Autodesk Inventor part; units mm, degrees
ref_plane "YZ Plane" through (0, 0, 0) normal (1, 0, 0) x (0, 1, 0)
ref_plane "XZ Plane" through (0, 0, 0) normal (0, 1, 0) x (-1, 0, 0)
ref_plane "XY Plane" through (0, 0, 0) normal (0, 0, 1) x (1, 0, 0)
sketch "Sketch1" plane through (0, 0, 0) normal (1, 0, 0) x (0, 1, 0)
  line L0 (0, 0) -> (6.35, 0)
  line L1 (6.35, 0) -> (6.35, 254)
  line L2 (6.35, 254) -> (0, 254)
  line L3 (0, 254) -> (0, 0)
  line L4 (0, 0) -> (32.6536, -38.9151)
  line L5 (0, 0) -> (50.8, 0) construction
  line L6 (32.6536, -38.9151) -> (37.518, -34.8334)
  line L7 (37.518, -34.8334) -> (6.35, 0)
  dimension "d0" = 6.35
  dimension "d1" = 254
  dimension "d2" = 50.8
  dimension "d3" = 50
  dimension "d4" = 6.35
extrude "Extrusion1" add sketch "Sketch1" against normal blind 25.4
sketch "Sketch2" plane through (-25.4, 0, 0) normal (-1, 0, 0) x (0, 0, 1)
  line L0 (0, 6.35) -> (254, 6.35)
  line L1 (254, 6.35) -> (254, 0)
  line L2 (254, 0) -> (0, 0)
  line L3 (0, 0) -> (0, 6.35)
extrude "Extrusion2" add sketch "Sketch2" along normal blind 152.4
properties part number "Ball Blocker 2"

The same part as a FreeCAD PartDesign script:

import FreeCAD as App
import Part
import Sketcher

V = App.Vector
Q = App.Units.Quantity


def add_polygon(sketch, points):
    """Adds a closed chain of lines whose ends are joined by coincident constraints."""
    first, n = sketch.GeometryCount, len(points)
    for a, b in zip(points, points[1:] + points[:1]):
        sketch.addGeometry(Part.LineSegment(App.Vector(*a, 0), App.Vector(*b, 0)), False)
    for i in range(n):
        sketch.addConstraint(Sketcher.Constraint("Coincident", first + i, 2, first + (i + 1) % n, 1))

doc = App.newDocument("Part")
body = doc.addObject("PartDesign::Body", "Body")

sketch1 = body.newObject("Sketcher::SketchObject", "Sketch")
sketch1.AttachmentSupport = (doc.getObject("YZ_Plane"), [""])
sketch1.MapMode = "FlatFace"
add_polygon(sketch1, [(0, 254), (0, 0), (33, -39), (38, -35), (6, 0), (6, 254)])
sketch1.addConstraint(Sketcher.Constraint("Vertical", 0))
sketch1.addConstraint(Sketcher.Constraint("Vertical", 4))
sketch1.addConstraint(Sketcher.Constraint("Horizontal", 5))
sketch1.addConstraint(Sketcher.Constraint("Coincident", 0, 2, -1, 1))
sketch1.addConstraint(Sketcher.Constraint("PointOnObject", 3, 2, -1))
sketch1.addConstraint(Sketcher.Constraint("Perpendicular", 1, 2))
sketch1.addConstraint(Sketcher.Constraint("DistanceY", 0, 2, 0, 1, Q("10 in")))
sketch1.addConstraint(Sketcher.Constraint("Distance", 1, Q("2 in")))
sketch1.addConstraint(Sketcher.Constraint("Angle", 1, Q("-50 deg")))
sketch1.addConstraint(Sketcher.Constraint("DistanceX", 5, 2, 5, 1, Q("0.25 in")))
sketch1.addConstraint(Sketcher.Constraint("Distance", 2, Q("0.25 in")))
pad1 = body.newObject("PartDesign::Pad", "Pad")
pad1.Profile = sketch1
pad1.Length = Q("1 in")
pad1.Reversed = True

sketch2 = body.newObject("Sketcher::SketchObject", "Sketch001")
sketch2.AttachmentSupport = (doc.getObject("YZ_Plane"), [""])
sketch2.MapMode = "FlatFace"
sketch2.AttachmentOffset = App.Placement(V(0, 0, -1 * 25.4), App.Rotation())
add_polygon(sketch2, [(6, 254), (6, 0), (0, 0), (0, 254)])
sketch2.addConstraint(Sketcher.Constraint("Vertical", 0))
sketch2.addConstraint(Sketcher.Constraint("Horizontal", 1))
sketch2.addConstraint(Sketcher.Constraint("Vertical", 2))
sketch2.addConstraint(Sketcher.Constraint("Horizontal", 3))
sketch2.addConstraint(Sketcher.Constraint("Coincident", 1, 2, -1, 1))
sketch2.addConstraint(Sketcher.Constraint("DistanceY", 0, 2, 0, 1, Q("10 in")))
sketch2.addConstraint(Sketcher.Constraint("DistanceX", 1, 2, 1, 1, Q("0.25 in")))
pad2 = body.newObject("PartDesign::Pad", "Pad001")
pad2.Profile = sketch2
pad2.Length = Q("6 in")
pad2.Reversed = True

doc.recompute()
